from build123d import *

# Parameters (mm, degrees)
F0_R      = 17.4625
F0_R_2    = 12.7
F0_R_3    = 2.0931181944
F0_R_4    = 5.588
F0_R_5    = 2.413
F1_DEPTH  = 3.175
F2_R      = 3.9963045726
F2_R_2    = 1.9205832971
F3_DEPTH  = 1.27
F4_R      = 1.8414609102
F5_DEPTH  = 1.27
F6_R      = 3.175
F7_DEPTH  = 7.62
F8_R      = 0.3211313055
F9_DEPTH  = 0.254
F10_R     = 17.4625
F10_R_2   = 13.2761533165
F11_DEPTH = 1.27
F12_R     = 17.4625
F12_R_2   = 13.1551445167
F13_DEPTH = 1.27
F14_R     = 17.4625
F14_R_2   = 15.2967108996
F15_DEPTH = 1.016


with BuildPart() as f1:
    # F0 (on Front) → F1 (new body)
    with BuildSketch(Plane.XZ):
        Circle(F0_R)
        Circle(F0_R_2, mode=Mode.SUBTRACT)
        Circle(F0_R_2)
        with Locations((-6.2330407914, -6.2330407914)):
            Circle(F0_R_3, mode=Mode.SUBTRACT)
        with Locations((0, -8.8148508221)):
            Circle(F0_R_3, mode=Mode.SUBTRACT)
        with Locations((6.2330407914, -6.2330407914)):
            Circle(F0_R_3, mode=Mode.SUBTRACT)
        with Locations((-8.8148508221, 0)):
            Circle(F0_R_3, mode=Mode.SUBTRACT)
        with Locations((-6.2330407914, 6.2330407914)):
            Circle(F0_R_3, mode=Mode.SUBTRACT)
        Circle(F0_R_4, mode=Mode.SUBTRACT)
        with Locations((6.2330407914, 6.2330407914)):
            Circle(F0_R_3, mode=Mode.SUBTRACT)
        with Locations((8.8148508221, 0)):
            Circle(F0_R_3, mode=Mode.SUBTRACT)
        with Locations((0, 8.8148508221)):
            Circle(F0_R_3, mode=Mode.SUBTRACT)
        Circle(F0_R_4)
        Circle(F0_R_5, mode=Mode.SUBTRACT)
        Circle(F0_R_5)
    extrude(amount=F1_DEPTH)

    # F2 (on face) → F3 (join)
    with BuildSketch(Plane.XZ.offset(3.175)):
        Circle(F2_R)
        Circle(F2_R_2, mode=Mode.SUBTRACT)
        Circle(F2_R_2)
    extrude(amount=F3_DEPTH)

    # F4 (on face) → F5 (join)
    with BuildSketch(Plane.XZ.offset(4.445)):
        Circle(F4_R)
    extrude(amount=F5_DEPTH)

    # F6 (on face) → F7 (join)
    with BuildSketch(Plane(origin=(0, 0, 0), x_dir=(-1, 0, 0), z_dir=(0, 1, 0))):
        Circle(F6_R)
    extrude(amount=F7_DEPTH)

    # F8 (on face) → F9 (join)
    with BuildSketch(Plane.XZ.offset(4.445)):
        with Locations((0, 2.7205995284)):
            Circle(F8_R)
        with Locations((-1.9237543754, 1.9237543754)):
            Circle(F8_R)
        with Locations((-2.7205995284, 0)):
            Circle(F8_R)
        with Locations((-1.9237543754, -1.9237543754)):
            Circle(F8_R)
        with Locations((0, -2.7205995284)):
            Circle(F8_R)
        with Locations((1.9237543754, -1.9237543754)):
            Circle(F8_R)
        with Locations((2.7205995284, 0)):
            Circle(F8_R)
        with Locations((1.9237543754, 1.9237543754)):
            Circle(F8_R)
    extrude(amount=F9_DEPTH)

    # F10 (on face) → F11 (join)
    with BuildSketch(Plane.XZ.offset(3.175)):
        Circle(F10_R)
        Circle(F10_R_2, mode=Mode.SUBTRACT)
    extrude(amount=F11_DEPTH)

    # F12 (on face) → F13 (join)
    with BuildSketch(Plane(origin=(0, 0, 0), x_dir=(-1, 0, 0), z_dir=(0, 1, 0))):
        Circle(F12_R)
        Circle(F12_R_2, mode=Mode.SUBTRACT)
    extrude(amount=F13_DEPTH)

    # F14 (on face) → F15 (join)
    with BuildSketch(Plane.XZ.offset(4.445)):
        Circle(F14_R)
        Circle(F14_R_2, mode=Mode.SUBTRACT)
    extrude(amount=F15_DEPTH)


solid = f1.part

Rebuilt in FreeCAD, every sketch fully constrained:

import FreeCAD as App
import Part
import Sketcher
from FreeCAD import Vector
Q = App.Units.Quantity

doc = App.newDocument("Part")
params = doc.addObject("Spreadsheet::Sheet", "Params")
for row, (alias, value) in enumerate([
    ("sketch1_diameter", "1.375 in"),
    ("pad1_length", "0.125 in"),
    ("pad2_length", "0.05 in"),
    ("pad3_length", "0.05 in"),
    ("sketch4_diameter", "0.25 in"),
    ("pad4_length", "0.3 in"),
    ("pad5_length", "0.01 in"),
    ("sketch6_diameter", "1.375 in"),
    ("pad6_length", "0.05 in"),
    ("sketch7_diameter", "1.375 in"),
    ("pad7_length", "0.05 in"),
    ("sketch8_diameter", "1.375 in"),
    ("pad8_length", "0.04 in"),
], start=1):
    params.set(f"A{row}", alias)
    params.set(f"B{row}", "=" + value)
    params.setAlias(f"B{row}", alias)

body = doc.addObject("PartDesign::Body", "Body")

# Sketch on XZ plane
sketch1 = body.newObject("Sketcher::SketchObject", "Sketch")
sketch1.AttachmentSupport = (doc.getObject("XZ_Plane"), [""])
sketch1.MapMode = "FlatFace"
sketch1.addGeometry([
    Part.Circle(Vector(0, 0, 0), Vector(0, 0, 1), 17.4625),  # 0
    Part.Circle(Vector(-6.233041, -6.233041, 0), Vector(0, 0, 1), 2.093118),  # 1
    Part.Circle(Vector(0, -8.814851, 0), Vector(0, 0, 1), 2.093118),  # 2
    Part.Circle(Vector(6.233041, -6.233041, 0), Vector(0, 0, 1), 2.093118),  # 3
    Part.Circle(Vector(-8.814851, 0, 0), Vector(0, 0, 1), 2.093118),  # 4
    Part.Circle(Vector(-6.233041, 6.233041, 0), Vector(0, 0, 1), 2.093118),  # 5
    Part.Circle(Vector(8.814851, 0, 0), Vector(0, 0, 1), 2.093118),  # 6
    Part.Circle(Vector(0, 8.814851, 0), Vector(0, 0, 1), 2.093118),  # 7
    Part.Circle(Vector(6.233041, 6.233041, 0), Vector(0, 0, 1), 2.093118),  # 8
], False)
sketch1.addConstraint([
    Sketcher.Constraint("Coincident", 0, 3, -1, 1),
    Sketcher.Constraint("Equal", 1, 2),
    Sketcher.Constraint("Equal", 2, 3),
    Sketcher.Constraint("Equal", 3, 4),
    Sketcher.Constraint("Equal", 4, 5),
    Sketcher.Constraint("Equal", 5, 6),
    Sketcher.Constraint("Equal", 6, 7),
    Sketcher.Constraint("Equal", 7, 8),
    Sketcher.Constraint("Symmetric", 3, 3, 5, 3, -1, 1),
    Sketcher.Constraint("Symmetric", 4, 3, 6, 3, -1, 1),
    Sketcher.Constraint("Symmetric", 2, 3, 7, 3, -1, 1),
    Sketcher.Constraint("Symmetric", 1, 3, 8, 3, -1, 1),
    Sketcher.Constraint("Symmetric", 1, 3, 3, 3, -2),
    Sketcher.Constraint("PointOnObject", 2, 3, -2),
    Sketcher.Constraint("PointOnObject", 4, 3, -1),
    Sketcher.Constraint("Diameter", 0, Q("1.375 in")),
    Sketcher.Constraint("Diameter", 1, Q("4.186236 mm")),
    Sketcher.Constraint("DistanceX", 1, 3, -1, 1, Q("6.233041 mm")),
    Sketcher.Constraint("DistanceY", 1, 3, -1, 1, Q("6.233041 mm")),
    Sketcher.Constraint("DistanceY", 2, 3, -1, 1, Q("8.814851 mm")),
    Sketcher.Constraint("DistanceX", 4, 3, -1, 1, Q("8.814851 mm")),
])
sketch1.setExpression("Constraints[15]", "Params.sketch1_diameter")
pad1 = body.newObject("PartDesign::Pad", "Pad")
pad1.Profile = sketch1
pad1.setExpression("Length", "Params.pad1_length")

# Sketch on XZ plane
sketch2 = body.newObject("Sketcher::SketchObject", "Sketch001")
sketch2.AttachmentSupport = (doc.getObject("XZ_Plane"), [""])
sketch2.MapMode = "FlatFace"
sketch2.AttachmentOffset = App.Placement(Vector(0, 0, 0.125 * 25.4), App.Rotation())
sketch2.addGeometry(Part.Circle(Vector(0, 0, 0), Vector(0, 0, 1), 3.996305), False)
sketch2.addConstraint([
    Sketcher.Constraint("Coincident", 0, 3, -1, 1),
    Sketcher.Constraint("Diameter", 0, Q("7.992609 mm")),
])
pad2 = body.newObject("PartDesign::Pad", "Pad001")
pad2.Profile = sketch2
pad2.setExpression("Length", "Params.pad2_length")

# Sketch on XZ plane
sketch3 = body.newObject("Sketcher::SketchObject", "Sketch002")
sketch3.AttachmentSupport = (doc.getObject("XZ_Plane"), [""])
sketch3.MapMode = "FlatFace"
sketch3.AttachmentOffset = App.Placement(Vector(0, 0, 0.175 * 25.4), App.Rotation())
sketch3.addGeometry(Part.Circle(Vector(0, 0, 0), Vector(0, 0, 1), 1.841461), False)
sketch3.addConstraint([
    Sketcher.Constraint("Coincident", 0, 3, -1, 1),
    Sketcher.Constraint("Diameter", 0, Q("3.682922 mm")),
])
pad3 = body.newObject("PartDesign::Pad", "Pad002")
pad3.Profile = sketch3
pad3.setExpression("Length", "Params.pad3_length")

# Sketch on XZ plane
sketch4 = body.newObject("Sketcher::SketchObject", "Sketch003")
sketch4.AttachmentSupport = (doc.getObject("XZ_Plane"), [""])
sketch4.MapMode = "FlatFace"
sketch4.addGeometry(Part.Circle(Vector(0, 0, 0), Vector(0, 0, 1), 3.175), False)
sketch4.addConstraint([
    Sketcher.Constraint("Coincident", 0, 3, -1, 1),
    Sketcher.Constraint("Diameter", 0, Q("0.25 in")),
])
sketch4.setExpression("Constraints[1]", "Params.sketch4_diameter")
pad4 = body.newObject("PartDesign::Pad", "Pad003")
pad4.Profile = sketch4
pad4.setExpression("Length", "Params.pad4_length")
pad4.Reversed = True

# Sketch on XZ plane
sketch5 = body.newObject("Sketcher::SketchObject", "Sketch004")
sketch5.AttachmentSupport = (doc.getObject("XZ_Plane"), [""])
sketch5.MapMode = "FlatFace"
sketch5.AttachmentOffset = App.Placement(Vector(0, 0, 0.175 * 25.4), App.Rotation())
sketch5.addGeometry([
    Part.Circle(Vector(0, 2.7206, 0), Vector(0, 0, 1), 0.321131),  # 0
    Part.Circle(Vector(-1.923754, 1.923754, 0), Vector(0, 0, 1), 0.321131),  # 1
    Part.Circle(Vector(-2.7206, 0, 0), Vector(0, 0, 1), 0.321131),  # 2
    Part.Circle(Vector(-1.923754, -1.923754, 0), Vector(0, 0, 1), 0.321131),  # 3
    Part.Circle(Vector(0, -2.7206, 0), Vector(0, 0, 1), 0.321131),  # 4
    Part.Circle(Vector(1.923754, -1.923754, 0), Vector(0, 0, 1), 0.321131),  # 5
    Part.Circle(Vector(2.7206, 0, 0), Vector(0, 0, 1), 0.321131),  # 6
    Part.Circle(Vector(1.923754, 1.923754, 0), Vector(0, 0, 1), 0.321131),  # 7
], False)
sketch5.addConstraint([
    Sketcher.Constraint("Equal", 0, 1),
    Sketcher.Constraint("Equal", 1, 2),
    Sketcher.Constraint("Equal", 2, 3),
    Sketcher.Constraint("Equal", 3, 4),
    Sketcher.Constraint("Equal", 4, 5),
    Sketcher.Constraint("Equal", 5, 6),
    Sketcher.Constraint("Equal", 6, 7),
    Sketcher.Constraint("Symmetric", 0, 3, 4, 3, -1, 1),
    Sketcher.Constraint("Symmetric", 1, 3, 5, 3, -1, 1),
    Sketcher.Constraint("Symmetric", 2, 3, 6, 3, -1, 1),
    Sketcher.Constraint("Symmetric", 3, 3, 7, 3, -1, 1),
    Sketcher.Constraint("Symmetric", 3, 3, 5, 3, -2),
    Sketcher.Constraint("PointOnObject", 0, 3, -2),
    Sketcher.Constraint("PointOnObject", 2, 3, -1),
    Sketcher.Constraint("Diameter", 0, Q("0.642263 mm")),
    Sketcher.Constraint("DistanceY", -1, 1, 0, 3, Q("2.7206 mm")),
    Sketcher.Constraint("DistanceX", 2, 3, -1, 1, Q("2.7206 mm")),
    Sketcher.Constraint("DistanceY", 3, 3, 1, 3, Q("3.847509 mm")),
    Sketcher.Constraint("DistanceX", 3, 3, 5, 3, Q("3.847509 mm")),
])
pad5 = body.newObject("PartDesign::Pad", "Pad004")
pad5.Profile = sketch5
pad5.setExpression("Length", "Params.pad5_length")

# Sketch on XZ plane
sketch6 = body.newObject("Sketcher::SketchObject", "Sketch005")
sketch6.AttachmentSupport = (doc.getObject("XZ_Plane"), [""])
sketch6.MapMode = "FlatFace"
sketch6.AttachmentOffset = App.Placement(Vector(0, 0, 0.125 * 25.4), App.Rotation())
sketch6.addGeometry([
    Part.Circle(Vector(0, 0, 0), Vector(0, 0, 1), 17.4625),
    Part.Circle(Vector(0, 0, 0), Vector(0, 0, 1), 13.276153),
], False)
sketch6.addConstraint([
    Sketcher.Constraint("Coincident", 0, 3, -1, 1),
    Sketcher.Constraint("Coincident", 1, 3, -1, 1),
    Sketcher.Constraint("Diameter", 0, Q("1.375 in")),
    Sketcher.Constraint("Diameter", 1, Q("26.552307 mm")),
])
sketch6.setExpression("Constraints[2]", "Params.sketch6_diameter")
pad6 = body.newObject("PartDesign::Pad", "Pad005")
pad6.Profile = sketch6
pad6.setExpression("Length", "Params.pad6_length")

# Sketch on XZ plane
sketch7 = body.newObject("Sketcher::SketchObject", "Sketch006")
sketch7.AttachmentSupport = (doc.getObject("XZ_Plane"), [""])
sketch7.MapMode = "FlatFace"
sketch7.addGeometry([
    Part.Circle(Vector(0, 0, 0), Vector(0, 0, 1), 17.4625),
    Part.Circle(Vector(0, 0, 0), Vector(0, 0, 1), 13.155145),
], False)
sketch7.addConstraint([
    Sketcher.Constraint("Coincident", 0, 3, -1, 1),
    Sketcher.Constraint("Coincident", 1, 3, -1, 1),
    Sketcher.Constraint("Diameter", 0, Q("1.375 in")),
    Sketcher.Constraint("Diameter", 1, Q("26.310289 mm")),
])
sketch7.setExpression("Constraints[2]", "Params.sketch7_diameter")
pad7 = body.newObject("PartDesign::Pad", "Pad006")
pad7.Profile = sketch7
pad7.setExpression("Length", "Params.pad7_length")
pad7.Reversed = True

# Sketch on XZ plane
sketch8 = body.newObject("Sketcher::SketchObject", "Sketch007")
sketch8.AttachmentSupport = (doc.getObject("XZ_Plane"), [""])
sketch8.MapMode = "FlatFace"
sketch8.AttachmentOffset = App.Placement(Vector(0, 0, 0.175 * 25.4), App.Rotation())
sketch8.addGeometry([
    Part.Circle(Vector(0, 0, 0), Vector(0, 0, 1), 17.4625),
    Part.Circle(Vector(0, 0, 0), Vector(0, 0, 1), 15.296711),
], False)
sketch8.addConstraint([
    Sketcher.Constraint("Coincident", 0, 3, -1, 1),
    Sketcher.Constraint("Coincident", 1, 3, -1, 1),
    Sketcher.Constraint("Diameter", 0, Q("1.375 in")),
    Sketcher.Constraint("Diameter", 1, Q("30.593422 mm")),
])
sketch8.setExpression("Constraints[2]", "Params.sketch8_diameter")
pad8 = body.newObject("PartDesign::Pad", "Pad007")
pad8.Profile = sketch8
pad8.setExpression("Length", "Params.pad8_length")

doc.recompute()
